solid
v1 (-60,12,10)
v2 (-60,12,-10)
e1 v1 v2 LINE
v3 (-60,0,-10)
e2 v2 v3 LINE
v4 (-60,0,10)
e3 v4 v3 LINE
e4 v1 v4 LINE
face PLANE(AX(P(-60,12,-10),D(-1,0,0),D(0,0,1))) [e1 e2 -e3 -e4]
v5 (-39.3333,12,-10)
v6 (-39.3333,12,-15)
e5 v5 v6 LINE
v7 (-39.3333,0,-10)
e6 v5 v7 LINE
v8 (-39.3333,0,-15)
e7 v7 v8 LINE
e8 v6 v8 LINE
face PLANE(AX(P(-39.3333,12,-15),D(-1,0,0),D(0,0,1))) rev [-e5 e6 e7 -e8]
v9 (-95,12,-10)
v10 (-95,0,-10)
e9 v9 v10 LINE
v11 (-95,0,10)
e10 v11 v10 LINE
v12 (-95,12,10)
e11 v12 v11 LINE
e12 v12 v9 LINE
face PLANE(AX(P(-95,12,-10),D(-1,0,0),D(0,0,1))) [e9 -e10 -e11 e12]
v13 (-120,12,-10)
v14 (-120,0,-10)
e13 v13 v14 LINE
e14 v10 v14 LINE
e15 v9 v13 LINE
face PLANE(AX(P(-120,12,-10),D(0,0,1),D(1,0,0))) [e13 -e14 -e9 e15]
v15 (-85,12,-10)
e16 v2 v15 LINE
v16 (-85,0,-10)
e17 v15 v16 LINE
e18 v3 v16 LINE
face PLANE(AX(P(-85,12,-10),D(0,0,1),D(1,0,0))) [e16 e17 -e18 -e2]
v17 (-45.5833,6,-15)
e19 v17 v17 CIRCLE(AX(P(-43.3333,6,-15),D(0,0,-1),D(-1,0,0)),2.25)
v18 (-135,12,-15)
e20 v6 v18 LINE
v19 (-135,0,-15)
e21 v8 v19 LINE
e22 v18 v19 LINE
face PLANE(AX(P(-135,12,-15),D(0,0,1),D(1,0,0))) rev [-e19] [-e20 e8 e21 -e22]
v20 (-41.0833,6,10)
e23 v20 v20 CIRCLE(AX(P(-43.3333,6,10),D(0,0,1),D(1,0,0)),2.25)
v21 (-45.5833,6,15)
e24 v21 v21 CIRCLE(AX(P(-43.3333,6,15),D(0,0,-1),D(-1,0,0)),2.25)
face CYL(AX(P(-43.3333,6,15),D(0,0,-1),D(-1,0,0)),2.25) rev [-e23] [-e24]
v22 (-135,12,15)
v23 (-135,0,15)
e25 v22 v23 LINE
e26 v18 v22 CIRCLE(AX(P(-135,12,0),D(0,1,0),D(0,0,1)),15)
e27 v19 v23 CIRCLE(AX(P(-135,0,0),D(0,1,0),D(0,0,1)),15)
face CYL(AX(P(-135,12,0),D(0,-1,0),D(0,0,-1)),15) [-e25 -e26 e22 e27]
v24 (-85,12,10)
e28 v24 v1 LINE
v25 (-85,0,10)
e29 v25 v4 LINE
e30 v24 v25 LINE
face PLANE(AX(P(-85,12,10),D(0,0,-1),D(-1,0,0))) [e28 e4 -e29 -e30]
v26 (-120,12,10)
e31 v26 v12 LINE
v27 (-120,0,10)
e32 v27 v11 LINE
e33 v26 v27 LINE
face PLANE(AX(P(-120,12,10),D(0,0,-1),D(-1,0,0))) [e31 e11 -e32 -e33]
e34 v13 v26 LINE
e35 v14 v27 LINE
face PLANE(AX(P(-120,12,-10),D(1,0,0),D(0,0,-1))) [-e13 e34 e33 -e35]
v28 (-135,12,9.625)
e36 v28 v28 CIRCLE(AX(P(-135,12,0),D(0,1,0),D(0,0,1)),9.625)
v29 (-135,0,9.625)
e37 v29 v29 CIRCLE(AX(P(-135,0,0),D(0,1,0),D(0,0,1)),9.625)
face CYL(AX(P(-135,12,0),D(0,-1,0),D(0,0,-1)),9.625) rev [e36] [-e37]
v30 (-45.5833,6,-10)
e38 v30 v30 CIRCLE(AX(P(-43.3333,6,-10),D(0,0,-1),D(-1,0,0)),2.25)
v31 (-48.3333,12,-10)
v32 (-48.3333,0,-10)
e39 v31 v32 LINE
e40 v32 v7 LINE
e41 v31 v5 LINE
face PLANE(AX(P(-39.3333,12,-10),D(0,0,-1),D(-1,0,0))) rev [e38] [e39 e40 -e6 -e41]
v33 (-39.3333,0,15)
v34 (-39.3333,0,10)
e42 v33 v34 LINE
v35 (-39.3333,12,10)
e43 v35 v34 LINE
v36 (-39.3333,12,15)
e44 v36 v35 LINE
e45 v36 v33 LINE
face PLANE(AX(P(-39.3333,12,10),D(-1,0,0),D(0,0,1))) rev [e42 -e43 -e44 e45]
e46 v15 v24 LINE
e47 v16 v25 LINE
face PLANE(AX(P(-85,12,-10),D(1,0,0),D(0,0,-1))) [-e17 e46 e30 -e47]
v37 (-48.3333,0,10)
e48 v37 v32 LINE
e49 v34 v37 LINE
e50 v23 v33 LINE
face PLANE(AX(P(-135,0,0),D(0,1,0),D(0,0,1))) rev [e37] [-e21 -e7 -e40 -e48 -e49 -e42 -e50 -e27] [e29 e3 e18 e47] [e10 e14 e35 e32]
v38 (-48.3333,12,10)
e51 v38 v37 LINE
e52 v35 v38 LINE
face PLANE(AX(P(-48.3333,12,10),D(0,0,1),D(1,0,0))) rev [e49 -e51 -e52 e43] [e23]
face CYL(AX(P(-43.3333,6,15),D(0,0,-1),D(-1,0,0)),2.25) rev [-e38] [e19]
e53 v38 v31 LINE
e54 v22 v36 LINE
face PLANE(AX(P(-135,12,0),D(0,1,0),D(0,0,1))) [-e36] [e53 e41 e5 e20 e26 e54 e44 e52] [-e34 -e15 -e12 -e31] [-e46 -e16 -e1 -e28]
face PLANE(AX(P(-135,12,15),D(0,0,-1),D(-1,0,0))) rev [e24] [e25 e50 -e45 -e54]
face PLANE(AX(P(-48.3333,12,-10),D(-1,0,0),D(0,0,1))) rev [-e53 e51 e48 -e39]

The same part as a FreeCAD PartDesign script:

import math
import FreeCAD as App
import Part
import Sketcher

doc = App.newDocument("Part")
body = doc.addObject("PartDesign::Body", "Body")

# Sketch on XZ plane
sketch1 = body.newObject("Sketcher::SketchObject", "Sketch")
sketch1.AttachmentSupport = (doc.getObject("XZ_Plane"), [""])
sketch1.MapMode = "FlatFace"
sketch1.addGeometry([
    Part.LineSegment(App.Vector(-39, -15, 0), App.Vector(-135, -15, 0)),  # 0
    Part.ArcOfCircle(Part.Circle(App.Vector(-135, 0, 0), App.Vector(0, 0, 1), 15), math.radians(90), math.radians(270)),  # 1
    Part.LineSegment(App.Vector(-135, 15, 0), App.Vector(-39, 15, 0)),  # 2
    Part.LineSegment(App.Vector(-39, 15, 0), App.Vector(-39, 10, 0)),  # 3
    Part.LineSegment(App.Vector(-39, 10, 0), App.Vector(-48, 10, 0)),  # 4
    Part.LineSegment(App.Vector(-48, 10, 0), App.Vector(-48, -10, 0)),  # 5
    Part.LineSegment(App.Vector(-48, -10, 0), App.Vector(-39, -10, 0)),  # 6
    Part.LineSegment(App.Vector(-39, -10, 0), App.Vector(-39, -15, 0)),  # 7
    Part.LineSegment(App.Vector(-85, 10, 0), App.Vector(-85, -10, 0)),  # 8
    Part.LineSegment(App.Vector(-85, -10, 0), App.Vector(-60, -10, 0)),  # 9
    Part.LineSegment(App.Vector(-60, -10, 0), App.Vector(-60, 10, 0)),  # 10
    Part.LineSegment(App.Vector(-60, 10, 0), App.Vector(-85, 10, 0)),  # 11
    Part.LineSegment(App.Vector(-120, 10, 0), App.Vector(-120, -10, 0)),  # 12
    Part.LineSegment(App.Vector(-120, -10, 0), App.Vector(-95, -10, 0)),  # 13
    Part.LineSegment(App.Vector(-95, -10, 0), App.Vector(-95, 10, 0)),  # 14
    Part.LineSegment(App.Vector(-95, 10, 0), App.Vector(-120, 10, 0)),  # 15
    Part.Circle(App.Vector(-135, 0, 0), App.Vector(0, 0, 1), 10),  # 16
], False)
sketch1.addConstraint([
    Sketcher.Constraint("Tangent", 0, 2, 1, 2),
    Sketcher.Constraint("Tangent", 1, 1, 2, 1),
    Sketcher.Constraint("Coincident", 2, 2, 3, 1),
    Sketcher.Constraint("Coincident", 3, 2, 4, 1),
    Sketcher.Constraint("Coincident", 4, 2, 5, 1),
    Sketcher.Constraint("Coincident", 5, 2, 6, 1),
    Sketcher.Constraint("Coincident", 6, 2, 7, 1),
    Sketcher.Constraint("Coincident", 7, 2, 0, 1),
    Sketcher.Constraint("Coincident", 8, 2, 9, 1),
    Sketcher.Constraint("Coincident", 9, 2, 10, 1),
    Sketcher.Constraint("Coincident", 10, 2, 11, 1),
    Sketcher.Constraint("Coincident", 11, 2, 8, 1),
    Sketcher.Constraint("Coincident", 12, 2, 13, 1),
    Sketcher.Constraint("Coincident", 13, 2, 14, 1),
    Sketcher.Constraint("Coincident", 14, 2, 15, 1),
    Sketcher.Constraint("Coincident", 15, 2, 12, 1),
    Sketcher.Constraint("Horizontal", 0),
    Sketcher.Constraint("Horizontal", 2),
    Sketcher.Constraint("Vertical", 3),
    Sketcher.Constraint("Horizontal", 4),
    Sketcher.Constraint("Vertical", 5),
    Sketcher.Constraint("Horizontal", 6),
    Sketcher.Constraint("Vertical", 7),
    Sketcher.Constraint("Vertical", 8),
    Sketcher.Constraint("Horizontal", 9),
    Sketcher.Constraint("Vertical", 10),
    Sketcher.Constraint("Horizontal", 11),
    Sketcher.Constraint("Vertical", 12),
    Sketcher.Constraint("Horizontal", 13),
    Sketcher.Constraint("Vertical", 14),
    Sketcher.Constraint("Horizontal", 15),
    Sketcher.Constraint("Coincident", 16, 3, 1, 3),
    Sketcher.Constraint("Symmetric", 3, 2, 6, 2, -1),
    Sketcher.Constraint("PointOnObject", 1, 3, -1),
    Sketcher.Constraint("Horizontal", 6, 2, 8, 2),
    Sketcher.Constraint("Horizontal", 4, 2, 10, 2),
    Sketcher.Constraint("Horizontal", 9, 2, 12, 2),
    Sketcher.Constraint("Horizontal", 11, 2, 14, 2),
    Sketcher.Constraint("Equal", 11, 13),
    Sketcher.Constraint("Radius", 1, 15.0),
    Sketcher.Constraint("Diameter", 16, 19.25),
    Sketcher.Constraint("DistanceX", 4, 2, 4, 1, 9.0),
    Sketcher.Constraint("DistanceX", 9, 1, 9, 2, 25.0),
    Sketcher.Constraint("DistanceY", 3, 2, 3, 1, 5.0),
    Sketcher.Constraint("DistanceX", 1, 3, -1, 1, 135.0),
    Sketcher.Constraint("DistanceX", 8, 2, -1, 1, 85.0),
    Sketcher.Constraint("DistanceX", 12, 2, -1, 1, 120.0),
    Sketcher.Constraint("DistanceX", 0, 2, 0, 1, 95.6667),
])
pad1 = body.newObject("PartDesign::Pad", "Pad")
pad1.Profile = sketch1
pad1.Length = 12
pad1.Reversed = True

# Sketch on XY plane
sketch2 = body.newObject("Sketcher::SketchObject", "Sketch001")
sketch2.AttachmentSupport = (doc.getObject("XY_Plane"), [""])
sketch2.MapMode = "FlatFace"
sketch2.AttachmentOffset = App.Placement(App.Vector(0, 0, -15), App.Rotation())
sketch2.addGeometry(Part.Circle(App.Vector(-43.3, 6, 0), App.Vector(0, 0, 1), 2.2), False)
sketch2.addConstraint([
    Sketcher.Constraint("Diameter", 0, 4.5),
    Sketcher.Constraint("DistanceY", -1, 1, 0, 3, 6.0),
    Sketcher.Constraint("DistanceX", 0, 3, -1, 1, 43.3333),
])
pocket1 = body.newObject("PartDesign::Pocket", "Pocket")
pocket1.Profile = sketch2
pocket1.Type = "ThroughAll"
pocket1.Reversed = True

doc.recompute()
